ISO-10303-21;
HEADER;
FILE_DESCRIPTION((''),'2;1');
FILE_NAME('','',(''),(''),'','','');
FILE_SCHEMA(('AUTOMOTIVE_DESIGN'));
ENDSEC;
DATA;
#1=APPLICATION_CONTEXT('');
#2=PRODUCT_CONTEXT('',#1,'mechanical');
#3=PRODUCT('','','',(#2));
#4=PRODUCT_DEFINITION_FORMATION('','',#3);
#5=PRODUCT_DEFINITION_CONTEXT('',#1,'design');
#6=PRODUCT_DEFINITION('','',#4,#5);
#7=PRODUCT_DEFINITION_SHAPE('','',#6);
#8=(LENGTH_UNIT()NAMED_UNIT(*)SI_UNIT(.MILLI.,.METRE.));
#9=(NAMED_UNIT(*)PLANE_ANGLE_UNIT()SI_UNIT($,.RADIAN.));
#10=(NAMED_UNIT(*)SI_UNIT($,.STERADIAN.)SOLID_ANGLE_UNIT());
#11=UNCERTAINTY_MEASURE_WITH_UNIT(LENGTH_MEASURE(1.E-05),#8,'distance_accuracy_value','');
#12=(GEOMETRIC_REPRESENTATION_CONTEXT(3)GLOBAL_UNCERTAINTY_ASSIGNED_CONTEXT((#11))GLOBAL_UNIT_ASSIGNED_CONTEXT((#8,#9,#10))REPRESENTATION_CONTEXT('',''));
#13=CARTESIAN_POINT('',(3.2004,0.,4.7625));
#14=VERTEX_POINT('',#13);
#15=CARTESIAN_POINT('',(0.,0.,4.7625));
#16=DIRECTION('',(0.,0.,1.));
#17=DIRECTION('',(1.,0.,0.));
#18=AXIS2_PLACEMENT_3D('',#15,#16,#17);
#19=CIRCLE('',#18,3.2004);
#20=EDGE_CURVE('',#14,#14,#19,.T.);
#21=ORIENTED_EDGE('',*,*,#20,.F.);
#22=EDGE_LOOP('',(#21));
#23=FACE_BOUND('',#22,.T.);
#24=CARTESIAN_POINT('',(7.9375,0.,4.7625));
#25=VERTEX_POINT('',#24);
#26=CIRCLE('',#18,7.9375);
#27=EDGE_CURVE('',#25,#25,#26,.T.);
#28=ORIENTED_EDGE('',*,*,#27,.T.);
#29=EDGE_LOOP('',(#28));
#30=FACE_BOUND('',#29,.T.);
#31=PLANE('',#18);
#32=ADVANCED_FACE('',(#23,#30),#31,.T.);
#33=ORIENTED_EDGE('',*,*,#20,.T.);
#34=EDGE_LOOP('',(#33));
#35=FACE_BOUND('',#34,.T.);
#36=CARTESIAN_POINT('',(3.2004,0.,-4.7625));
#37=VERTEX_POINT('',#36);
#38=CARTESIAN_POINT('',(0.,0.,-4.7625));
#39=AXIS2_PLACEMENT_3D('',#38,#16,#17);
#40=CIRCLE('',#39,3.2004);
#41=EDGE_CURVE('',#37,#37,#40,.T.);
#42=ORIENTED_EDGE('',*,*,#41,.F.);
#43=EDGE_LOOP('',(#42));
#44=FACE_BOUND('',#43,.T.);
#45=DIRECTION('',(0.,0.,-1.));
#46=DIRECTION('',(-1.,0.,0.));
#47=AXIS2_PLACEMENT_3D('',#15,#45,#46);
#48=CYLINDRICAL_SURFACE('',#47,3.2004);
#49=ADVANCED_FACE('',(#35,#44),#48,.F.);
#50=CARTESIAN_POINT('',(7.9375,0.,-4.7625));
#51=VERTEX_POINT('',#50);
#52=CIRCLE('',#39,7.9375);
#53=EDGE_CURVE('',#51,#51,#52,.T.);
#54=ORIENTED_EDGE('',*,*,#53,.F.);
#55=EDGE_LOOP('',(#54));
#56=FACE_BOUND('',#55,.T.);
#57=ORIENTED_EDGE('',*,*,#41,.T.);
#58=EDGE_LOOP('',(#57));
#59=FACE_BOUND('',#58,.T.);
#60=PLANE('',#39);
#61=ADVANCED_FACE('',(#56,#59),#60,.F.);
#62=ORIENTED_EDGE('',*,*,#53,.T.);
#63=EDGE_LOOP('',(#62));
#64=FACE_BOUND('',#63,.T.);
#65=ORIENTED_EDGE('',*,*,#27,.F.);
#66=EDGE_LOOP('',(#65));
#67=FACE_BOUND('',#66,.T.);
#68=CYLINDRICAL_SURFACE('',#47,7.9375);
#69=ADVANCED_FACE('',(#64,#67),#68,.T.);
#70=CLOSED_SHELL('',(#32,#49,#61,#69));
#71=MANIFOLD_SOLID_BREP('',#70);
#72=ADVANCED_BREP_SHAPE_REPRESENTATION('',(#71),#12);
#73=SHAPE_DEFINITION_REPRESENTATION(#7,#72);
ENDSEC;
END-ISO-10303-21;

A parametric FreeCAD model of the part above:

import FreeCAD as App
import Part
import Sketcher

V = App.Vector
Q = App.Units.Quantity

doc = App.newDocument("Part")
body = doc.addObject("PartDesign::Body", "Body")

sketch1 = body.newObject("Sketcher::SketchObject", "Sketch")
sketch1.AttachmentSupport = (doc.getObject("XY_Plane"), [""])
sketch1.MapMode = "FlatFace"
sketch1.addGeometry([
    Part.Circle(V(0, 0, 0), V(0, 0, 1), 7.9),
    Part.Circle(V(0, 0, 0), V(0, 0, 1), 3.2),
], False)
sketch1.addConstraint([
    Sketcher.Constraint("Coincident", 0, 3, -1, 1),
    Sketcher.Constraint("Coincident", 1, 3, -1, 1),
    Sketcher.Constraint("Diameter", 0, Q("0.625 in")),
    Sketcher.Constraint("Diameter", 1, Q("0.252 in")),
])
pad1 = body.newObject("PartDesign::Pad", "Pad")
pad1.Profile = sketch1
pad1.Length = Q("0.375 in")
pad1.Midplane = True

doc.recompute()
